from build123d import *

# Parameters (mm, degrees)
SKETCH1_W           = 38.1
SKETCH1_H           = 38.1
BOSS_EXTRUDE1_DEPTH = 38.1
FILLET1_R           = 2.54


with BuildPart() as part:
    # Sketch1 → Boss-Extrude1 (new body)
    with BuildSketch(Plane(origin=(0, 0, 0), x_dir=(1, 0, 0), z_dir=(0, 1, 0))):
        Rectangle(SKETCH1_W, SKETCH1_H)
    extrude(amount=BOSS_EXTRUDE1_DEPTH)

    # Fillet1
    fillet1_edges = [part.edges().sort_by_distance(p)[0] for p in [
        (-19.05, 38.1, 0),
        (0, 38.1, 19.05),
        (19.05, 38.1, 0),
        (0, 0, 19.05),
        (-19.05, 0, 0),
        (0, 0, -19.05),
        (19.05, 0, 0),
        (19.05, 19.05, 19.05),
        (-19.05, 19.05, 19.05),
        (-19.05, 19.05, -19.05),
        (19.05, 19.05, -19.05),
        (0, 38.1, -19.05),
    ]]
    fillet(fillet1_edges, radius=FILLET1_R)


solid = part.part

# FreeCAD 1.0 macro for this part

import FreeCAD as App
import Part
import Sketcher
from FreeCAD import Vector
Q = App.Units.Quantity

doc = App.newDocument("Part")
body = doc.addObject("PartDesign::Body", "Body")

sketch1 = body.newObject("Sketcher::SketchObject", "Sketch")
sketch1.AttachmentSupport = (doc.getObject("XZ_Plane"), [""])
sketch1.MapMode = "FlatFace"
sketch1.addGeometry([
    Part.LineSegment(Vector(-19.05, -19.05, 0), Vector(-19.05, 19.05, 0)),
    Part.LineSegment(Vector(-19.05, 19.05, 0), Vector(19.05, 19.05, 0)),
    Part.LineSegment(Vector(19.05, 19.05, 0), Vector(19.05, -19.05, 0)),
    Part.LineSegment(Vector(19.05, -19.05, 0), Vector(-19.05, -19.05, 0)),
], False)
sketch1.addConstraint([
    Sketcher.Constraint("Coincident", 0, 2, 1, 1),
    Sketcher.Constraint("Coincident", 1, 2, 2, 1),
    Sketcher.Constraint("Coincident", 2, 2, 3, 1),
    Sketcher.Constraint("Coincident", 3, 2, 0, 1),
    Sketcher.Constraint("Vertical", 0),
    Sketcher.Constraint("Horizontal", 1),
    Sketcher.Constraint("Vertical", 2),
    Sketcher.Constraint("Horizontal", 3),
    Sketcher.Constraint("Symmetric", 0, 2, 2, 2, -1, 1),
    Sketcher.Constraint("Equal", 3, 0),
    Sketcher.Constraint("DistanceX", 1, 1, 1, 2, Q("1.5 in")),
])
pad1 = body.newObject("PartDesign::Pad", "Pad")
pad1.Profile = sketch1
pad1.Length = Q("1.5 in")
pad1.Reversed = True
doc.recompute()

fillet = body.newObject("PartDesign::Fillet", "Fillet")
fillet.Base = (pad1, ["Edge1"])
fillet.UseAllEdges = True
fillet.Radius = Q("0.1 in")

doc.recompute()
